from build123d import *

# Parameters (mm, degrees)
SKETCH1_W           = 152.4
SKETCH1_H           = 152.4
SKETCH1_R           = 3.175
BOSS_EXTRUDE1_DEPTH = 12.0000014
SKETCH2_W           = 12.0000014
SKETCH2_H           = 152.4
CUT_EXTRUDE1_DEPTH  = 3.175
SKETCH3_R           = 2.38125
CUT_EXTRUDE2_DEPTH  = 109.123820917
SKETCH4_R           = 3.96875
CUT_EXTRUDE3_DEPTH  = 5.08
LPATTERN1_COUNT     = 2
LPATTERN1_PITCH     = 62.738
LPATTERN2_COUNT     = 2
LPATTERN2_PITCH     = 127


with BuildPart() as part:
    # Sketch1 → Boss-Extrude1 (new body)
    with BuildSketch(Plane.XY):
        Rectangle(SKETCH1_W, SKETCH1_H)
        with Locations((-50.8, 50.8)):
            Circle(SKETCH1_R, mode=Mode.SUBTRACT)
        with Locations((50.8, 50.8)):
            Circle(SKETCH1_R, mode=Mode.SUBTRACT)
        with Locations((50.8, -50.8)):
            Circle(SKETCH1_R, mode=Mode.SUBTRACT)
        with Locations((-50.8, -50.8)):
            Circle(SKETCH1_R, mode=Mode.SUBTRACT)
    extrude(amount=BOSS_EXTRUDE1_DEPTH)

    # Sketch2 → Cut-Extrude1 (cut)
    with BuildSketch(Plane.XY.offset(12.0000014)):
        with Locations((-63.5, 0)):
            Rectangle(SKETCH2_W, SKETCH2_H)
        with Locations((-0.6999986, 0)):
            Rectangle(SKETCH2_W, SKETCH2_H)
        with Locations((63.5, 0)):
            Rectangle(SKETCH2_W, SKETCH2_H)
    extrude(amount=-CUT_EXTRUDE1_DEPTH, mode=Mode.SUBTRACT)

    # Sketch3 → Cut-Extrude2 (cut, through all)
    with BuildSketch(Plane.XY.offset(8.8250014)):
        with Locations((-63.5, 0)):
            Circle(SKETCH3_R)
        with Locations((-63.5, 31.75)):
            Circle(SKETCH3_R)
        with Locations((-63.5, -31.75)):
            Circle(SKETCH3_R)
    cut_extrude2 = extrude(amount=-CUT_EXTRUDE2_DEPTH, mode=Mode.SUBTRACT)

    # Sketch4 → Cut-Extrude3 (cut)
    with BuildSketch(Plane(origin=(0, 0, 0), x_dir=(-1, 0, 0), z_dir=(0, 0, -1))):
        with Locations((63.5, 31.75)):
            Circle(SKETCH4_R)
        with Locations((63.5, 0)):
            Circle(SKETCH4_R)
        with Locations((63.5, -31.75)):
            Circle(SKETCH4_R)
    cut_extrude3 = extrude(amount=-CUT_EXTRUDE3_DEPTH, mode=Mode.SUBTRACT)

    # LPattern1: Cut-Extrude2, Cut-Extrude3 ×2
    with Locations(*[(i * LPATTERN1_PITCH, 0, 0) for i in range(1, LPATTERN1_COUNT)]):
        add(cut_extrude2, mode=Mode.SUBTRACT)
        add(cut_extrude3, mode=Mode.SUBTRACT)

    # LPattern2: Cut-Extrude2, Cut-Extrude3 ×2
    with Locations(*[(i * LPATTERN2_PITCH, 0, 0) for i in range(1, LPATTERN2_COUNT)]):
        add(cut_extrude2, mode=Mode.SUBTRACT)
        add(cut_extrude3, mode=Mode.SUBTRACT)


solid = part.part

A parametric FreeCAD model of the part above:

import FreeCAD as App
import Part
import Sketcher
Q = App.Units.Quantity


def add_polygon(sketch, points):
    """Adds a closed chain of lines whose ends are joined by coincident constraints."""
    first, n = sketch.GeometryCount, len(points)
    for a, b in zip(points, points[1:] + points[:1]):
        sketch.addGeometry(Part.LineSegment(App.Vector(*a, 0), App.Vector(*b, 0)), False)
    for i in range(n):
        sketch.addConstraint(Sketcher.Constraint("Coincident", first + i, 2, first + (i + 1) % n, 1))

doc = App.newDocument("Part")
body = doc.addObject("PartDesign::Body", "Body")

sketch1 = body.newObject("Sketcher::SketchObject", "Sketch")
sketch1.AttachmentSupport = (doc.getObject("XY_Plane"), [""])
sketch1.MapMode = "FlatFace"
add_polygon(sketch1, [(-76.2, 76.2), (-76.2, -76.2), (76.2, -76.2), (76.2, 76.2)])
sketch1.addGeometry(Part.Circle(App.Vector(-50.8, -50.8, 0), App.Vector(0, 0, 1), 3.2), False)
sketch1.addGeometry(Part.Circle(App.Vector(50.8, -50.8, 0), App.Vector(0, 0, 1), 3.2), False)
sketch1.addGeometry(Part.Circle(App.Vector(-50.8, 50.8, 0), App.Vector(0, 0, 1), 3.2), False)
sketch1.addGeometry(Part.Circle(App.Vector(50.8, 50.8, 0), App.Vector(0, 0, 1), 3.2), False)
sketch1.addConstraint(Sketcher.Constraint("Vertical", 0))
sketch1.addConstraint(Sketcher.Constraint("Horizontal", 1))
sketch1.addConstraint(Sketcher.Constraint("Vertical", 2))
sketch1.addConstraint(Sketcher.Constraint("Horizontal", 3))
sketch1.addConstraint(Sketcher.Constraint("Equal", 4, 5))
sketch1.addConstraint(Sketcher.Constraint("Equal", 5, 6))
sketch1.addConstraint(Sketcher.Constraint("Equal", 6, 7))
sketch1.addConstraint(Sketcher.Constraint("Symmetric", 5, 3, 6, 3, -1, 1))
sketch1.addConstraint(Sketcher.Constraint("Symmetric", 4, 3, 7, 3, -1, 1))
sketch1.addConstraint(Sketcher.Constraint("Symmetric", 0, 2, 2, 2, -1, 1))
sketch1.addConstraint(Sketcher.Constraint("Symmetric", 4, 3, 5, 3, -2))
sketch1.addConstraint(Sketcher.Constraint("Equal", 3, 0))
sketch1.addConstraint(Sketcher.Constraint("Diameter", 4, Q("0.25 in")))
sketch1.addConstraint(Sketcher.Constraint("DistanceX", 1, 1, 1, 2, Q("6 in")))
sketch1.addConstraint(Sketcher.Constraint("DistanceX", 4, 3, -1, 1, Q("2 in")))
sketch1.addConstraint(Sketcher.Constraint("DistanceY", 4, 3, -1, 1, Q("2 in")))
pad1 = body.newObject("PartDesign::Pad", "Pad")
pad1.Profile = sketch1
pad1.Length = 12.000001

sketch2 = body.newObject("Sketcher::SketchObject", "Sketch001")
sketch2.AttachmentSupport = (doc.getObject("XY_Plane"), [""])
sketch2.MapMode = "FlatFace"
sketch2.AttachmentOffset = App.Placement(App.Vector(0, 0, 12.000001), App.Rotation())
add_polygon(sketch2, [(-70, 76), (-70, -76), (-57, -76), (-57, 76)])
add_polygon(sketch2, [(-7, 76), (-7, -76), (5, -76), (5, 76)])
add_polygon(sketch2, [(57, 76), (57, -76), (70, -76), (70, 76)])
sketch2.addConstraint(Sketcher.Constraint("Vertical", 0))
sketch2.addConstraint(Sketcher.Constraint("Horizontal", 1))
sketch2.addConstraint(Sketcher.Constraint("Vertical", 2))
sketch2.addConstraint(Sketcher.Constraint("Horizontal", 3))
sketch2.addConstraint(Sketcher.Constraint("Vertical", 4))
sketch2.addConstraint(Sketcher.Constraint("Horizontal", 5))
sketch2.addConstraint(Sketcher.Constraint("Vertical", 6))
sketch2.addConstraint(Sketcher.Constraint("Horizontal", 7))
sketch2.addConstraint(Sketcher.Constraint("Vertical", 8))
sketch2.addConstraint(Sketcher.Constraint("Horizontal", 9))
sketch2.addConstraint(Sketcher.Constraint("Vertical", 10))
sketch2.addConstraint(Sketcher.Constraint("Horizontal", 11))
sketch2.addConstraint(Sketcher.Constraint("Symmetric", 2, 2, 8, 2, -1, 1))
sketch2.addConstraint(Sketcher.Constraint("Symmetric", 0, 2, 10, 2, -1, 1))
sketch2.addConstraint(Sketcher.Constraint("Horizontal", 1, 2, 4, 2))
sketch2.addConstraint(Sketcher.Constraint("Horizontal", 3, 2, 6, 2))
sketch2.addConstraint(Sketcher.Constraint("Horizontal", 5, 2, 8, 2))
sketch2.addConstraint(Sketcher.Constraint("Equal", 3, 5))
sketch2.addConstraint(Sketcher.Constraint("DistanceY", 0, 2, 0, 1, Q("6 in")))
sketch2.addConstraint(Sketcher.Constraint("DistanceX", 1, 2, 4, 2, Q("2 in")))
sketch2.addConstraint(Sketcher.Constraint("DistanceX", 0, 2, 8, 2, Q("5 in")))
sketch2.addConstraint(Sketcher.Constraint("DistanceX", 1, 1, 1, 2, 12.000001))
pocket1 = body.newObject("PartDesign::Pocket", "Pocket")
pocket1.Profile = sketch2
pocket1.Length = Q("0.125 in")

sketch3 = body.newObject("Sketcher::SketchObject", "Sketch002")
sketch3.AttachmentSupport = (doc.getObject("XY_Plane"), [""])
sketch3.MapMode = "FlatFace"
sketch3.AttachmentOffset = App.Placement(App.Vector(0, 0, 8.825001), App.Rotation())
sketch3.addGeometry(Part.Circle(App.Vector(-63.5, 0, 0), App.Vector(0, 0, 1), 2.4), False)
sketch3.addGeometry(Part.Circle(App.Vector(-63.5, 31.8, 0), App.Vector(0, 0, 1), 2.4), False)
sketch3.addGeometry(Part.Circle(App.Vector(-63.5, -31.8, 0), App.Vector(0, 0, 1), 2.4), False)
sketch3.addConstraint(Sketcher.Constraint("Equal", 0, 1))
sketch3.addConstraint(Sketcher.Constraint("Equal", 1, 2))
sketch3.addConstraint(Sketcher.Constraint("Symmetric", 1, 3, 2, 3, -1))
sketch3.addConstraint(Sketcher.Constraint("PointOnObject", 0, 3, -1))
sketch3.addConstraint(Sketcher.Constraint("Vertical", 0, 3, 1, 3))
sketch3.addConstraint(Sketcher.Constraint("Diameter", 0, Q("0.1875 in")))
sketch3.addConstraint(Sketcher.Constraint("DistanceX", 0, 3, -1, 1, Q("2.5 in")))
sketch3.addConstraint(Sketcher.Constraint("DistanceY", 2, 3, 1, 3, Q("2.5 in")))
pocket2 = body.newObject("PartDesign::Pocket", "Pocket001")
pocket2.Profile = sketch3
pocket2.Type = "ThroughAll"

sketch4 = body.newObject("Sketcher::SketchObject", "Sketch003")
sketch4.AttachmentSupport = (doc.getObject("XY_Plane"), [""])
sketch4.MapMode = "FlatFace"
sketch4.addGeometry(Part.Circle(App.Vector(-63.5, 31.8, 0), App.Vector(0, 0, 1), 4), False)
sketch4.addGeometry(Part.Circle(App.Vector(-63.5, 0, 0), App.Vector(0, 0, 1), 4), False)
sketch4.addGeometry(Part.Circle(App.Vector(-63.5, -31.8, 0), App.Vector(0, 0, 1), 4), False)
sketch4.addConstraint(Sketcher.Constraint("Equal", 0, 1))
sketch4.addConstraint(Sketcher.Constraint("Equal", 1, 2))
sketch4.addConstraint(Sketcher.Constraint("Symmetric", 0, 3, 2, 3, -1))
sketch4.addConstraint(Sketcher.Constraint("PointOnObject", 1, 3, -1))
sketch4.addConstraint(Sketcher.Constraint("Vertical", 0, 3, 1, 3))
sketch4.addConstraint(Sketcher.Constraint("Diameter", 0, Q("0.3125 in")))
sketch4.addConstraint(Sketcher.Constraint("DistanceX", 0, 3, -1, 1, Q("2.5 in")))
sketch4.addConstraint(Sketcher.Constraint("DistanceY", 2, 3, 0, 3, Q("2.5 in")))
pocket3 = body.newObject("PartDesign::Pocket", "Pocket002")
pocket3.Profile = sketch4
pocket3.Length = Q("0.2 in")
pocket3.Reversed = True
doc.recompute()

linearpattern = body.newObject("PartDesign::LinearPattern", "LinearPattern")
linearpattern.Originals = [pocket2, pocket3]
linearpattern.Direction = (doc.getObject("X_Axis"), [""])
linearpattern.Mode = "offset"
linearpattern.Offset = Q("2.47 in")
linearpattern.Occurrences = 2
body.Tip = linearpattern
doc.recompute()

linearpattern2 = body.newObject("PartDesign::LinearPattern", "LinearPattern001")
linearpattern2.Originals = [pocket2, pocket3]
linearpattern2.Direction = (doc.getObject("X_Axis"), [""])
linearpattern2.Mode = "offset"
linearpattern2.Offset = Q("5 in")
linearpattern2.Occurrences = 2
body.Tip = linearpattern2

doc.recompute()
